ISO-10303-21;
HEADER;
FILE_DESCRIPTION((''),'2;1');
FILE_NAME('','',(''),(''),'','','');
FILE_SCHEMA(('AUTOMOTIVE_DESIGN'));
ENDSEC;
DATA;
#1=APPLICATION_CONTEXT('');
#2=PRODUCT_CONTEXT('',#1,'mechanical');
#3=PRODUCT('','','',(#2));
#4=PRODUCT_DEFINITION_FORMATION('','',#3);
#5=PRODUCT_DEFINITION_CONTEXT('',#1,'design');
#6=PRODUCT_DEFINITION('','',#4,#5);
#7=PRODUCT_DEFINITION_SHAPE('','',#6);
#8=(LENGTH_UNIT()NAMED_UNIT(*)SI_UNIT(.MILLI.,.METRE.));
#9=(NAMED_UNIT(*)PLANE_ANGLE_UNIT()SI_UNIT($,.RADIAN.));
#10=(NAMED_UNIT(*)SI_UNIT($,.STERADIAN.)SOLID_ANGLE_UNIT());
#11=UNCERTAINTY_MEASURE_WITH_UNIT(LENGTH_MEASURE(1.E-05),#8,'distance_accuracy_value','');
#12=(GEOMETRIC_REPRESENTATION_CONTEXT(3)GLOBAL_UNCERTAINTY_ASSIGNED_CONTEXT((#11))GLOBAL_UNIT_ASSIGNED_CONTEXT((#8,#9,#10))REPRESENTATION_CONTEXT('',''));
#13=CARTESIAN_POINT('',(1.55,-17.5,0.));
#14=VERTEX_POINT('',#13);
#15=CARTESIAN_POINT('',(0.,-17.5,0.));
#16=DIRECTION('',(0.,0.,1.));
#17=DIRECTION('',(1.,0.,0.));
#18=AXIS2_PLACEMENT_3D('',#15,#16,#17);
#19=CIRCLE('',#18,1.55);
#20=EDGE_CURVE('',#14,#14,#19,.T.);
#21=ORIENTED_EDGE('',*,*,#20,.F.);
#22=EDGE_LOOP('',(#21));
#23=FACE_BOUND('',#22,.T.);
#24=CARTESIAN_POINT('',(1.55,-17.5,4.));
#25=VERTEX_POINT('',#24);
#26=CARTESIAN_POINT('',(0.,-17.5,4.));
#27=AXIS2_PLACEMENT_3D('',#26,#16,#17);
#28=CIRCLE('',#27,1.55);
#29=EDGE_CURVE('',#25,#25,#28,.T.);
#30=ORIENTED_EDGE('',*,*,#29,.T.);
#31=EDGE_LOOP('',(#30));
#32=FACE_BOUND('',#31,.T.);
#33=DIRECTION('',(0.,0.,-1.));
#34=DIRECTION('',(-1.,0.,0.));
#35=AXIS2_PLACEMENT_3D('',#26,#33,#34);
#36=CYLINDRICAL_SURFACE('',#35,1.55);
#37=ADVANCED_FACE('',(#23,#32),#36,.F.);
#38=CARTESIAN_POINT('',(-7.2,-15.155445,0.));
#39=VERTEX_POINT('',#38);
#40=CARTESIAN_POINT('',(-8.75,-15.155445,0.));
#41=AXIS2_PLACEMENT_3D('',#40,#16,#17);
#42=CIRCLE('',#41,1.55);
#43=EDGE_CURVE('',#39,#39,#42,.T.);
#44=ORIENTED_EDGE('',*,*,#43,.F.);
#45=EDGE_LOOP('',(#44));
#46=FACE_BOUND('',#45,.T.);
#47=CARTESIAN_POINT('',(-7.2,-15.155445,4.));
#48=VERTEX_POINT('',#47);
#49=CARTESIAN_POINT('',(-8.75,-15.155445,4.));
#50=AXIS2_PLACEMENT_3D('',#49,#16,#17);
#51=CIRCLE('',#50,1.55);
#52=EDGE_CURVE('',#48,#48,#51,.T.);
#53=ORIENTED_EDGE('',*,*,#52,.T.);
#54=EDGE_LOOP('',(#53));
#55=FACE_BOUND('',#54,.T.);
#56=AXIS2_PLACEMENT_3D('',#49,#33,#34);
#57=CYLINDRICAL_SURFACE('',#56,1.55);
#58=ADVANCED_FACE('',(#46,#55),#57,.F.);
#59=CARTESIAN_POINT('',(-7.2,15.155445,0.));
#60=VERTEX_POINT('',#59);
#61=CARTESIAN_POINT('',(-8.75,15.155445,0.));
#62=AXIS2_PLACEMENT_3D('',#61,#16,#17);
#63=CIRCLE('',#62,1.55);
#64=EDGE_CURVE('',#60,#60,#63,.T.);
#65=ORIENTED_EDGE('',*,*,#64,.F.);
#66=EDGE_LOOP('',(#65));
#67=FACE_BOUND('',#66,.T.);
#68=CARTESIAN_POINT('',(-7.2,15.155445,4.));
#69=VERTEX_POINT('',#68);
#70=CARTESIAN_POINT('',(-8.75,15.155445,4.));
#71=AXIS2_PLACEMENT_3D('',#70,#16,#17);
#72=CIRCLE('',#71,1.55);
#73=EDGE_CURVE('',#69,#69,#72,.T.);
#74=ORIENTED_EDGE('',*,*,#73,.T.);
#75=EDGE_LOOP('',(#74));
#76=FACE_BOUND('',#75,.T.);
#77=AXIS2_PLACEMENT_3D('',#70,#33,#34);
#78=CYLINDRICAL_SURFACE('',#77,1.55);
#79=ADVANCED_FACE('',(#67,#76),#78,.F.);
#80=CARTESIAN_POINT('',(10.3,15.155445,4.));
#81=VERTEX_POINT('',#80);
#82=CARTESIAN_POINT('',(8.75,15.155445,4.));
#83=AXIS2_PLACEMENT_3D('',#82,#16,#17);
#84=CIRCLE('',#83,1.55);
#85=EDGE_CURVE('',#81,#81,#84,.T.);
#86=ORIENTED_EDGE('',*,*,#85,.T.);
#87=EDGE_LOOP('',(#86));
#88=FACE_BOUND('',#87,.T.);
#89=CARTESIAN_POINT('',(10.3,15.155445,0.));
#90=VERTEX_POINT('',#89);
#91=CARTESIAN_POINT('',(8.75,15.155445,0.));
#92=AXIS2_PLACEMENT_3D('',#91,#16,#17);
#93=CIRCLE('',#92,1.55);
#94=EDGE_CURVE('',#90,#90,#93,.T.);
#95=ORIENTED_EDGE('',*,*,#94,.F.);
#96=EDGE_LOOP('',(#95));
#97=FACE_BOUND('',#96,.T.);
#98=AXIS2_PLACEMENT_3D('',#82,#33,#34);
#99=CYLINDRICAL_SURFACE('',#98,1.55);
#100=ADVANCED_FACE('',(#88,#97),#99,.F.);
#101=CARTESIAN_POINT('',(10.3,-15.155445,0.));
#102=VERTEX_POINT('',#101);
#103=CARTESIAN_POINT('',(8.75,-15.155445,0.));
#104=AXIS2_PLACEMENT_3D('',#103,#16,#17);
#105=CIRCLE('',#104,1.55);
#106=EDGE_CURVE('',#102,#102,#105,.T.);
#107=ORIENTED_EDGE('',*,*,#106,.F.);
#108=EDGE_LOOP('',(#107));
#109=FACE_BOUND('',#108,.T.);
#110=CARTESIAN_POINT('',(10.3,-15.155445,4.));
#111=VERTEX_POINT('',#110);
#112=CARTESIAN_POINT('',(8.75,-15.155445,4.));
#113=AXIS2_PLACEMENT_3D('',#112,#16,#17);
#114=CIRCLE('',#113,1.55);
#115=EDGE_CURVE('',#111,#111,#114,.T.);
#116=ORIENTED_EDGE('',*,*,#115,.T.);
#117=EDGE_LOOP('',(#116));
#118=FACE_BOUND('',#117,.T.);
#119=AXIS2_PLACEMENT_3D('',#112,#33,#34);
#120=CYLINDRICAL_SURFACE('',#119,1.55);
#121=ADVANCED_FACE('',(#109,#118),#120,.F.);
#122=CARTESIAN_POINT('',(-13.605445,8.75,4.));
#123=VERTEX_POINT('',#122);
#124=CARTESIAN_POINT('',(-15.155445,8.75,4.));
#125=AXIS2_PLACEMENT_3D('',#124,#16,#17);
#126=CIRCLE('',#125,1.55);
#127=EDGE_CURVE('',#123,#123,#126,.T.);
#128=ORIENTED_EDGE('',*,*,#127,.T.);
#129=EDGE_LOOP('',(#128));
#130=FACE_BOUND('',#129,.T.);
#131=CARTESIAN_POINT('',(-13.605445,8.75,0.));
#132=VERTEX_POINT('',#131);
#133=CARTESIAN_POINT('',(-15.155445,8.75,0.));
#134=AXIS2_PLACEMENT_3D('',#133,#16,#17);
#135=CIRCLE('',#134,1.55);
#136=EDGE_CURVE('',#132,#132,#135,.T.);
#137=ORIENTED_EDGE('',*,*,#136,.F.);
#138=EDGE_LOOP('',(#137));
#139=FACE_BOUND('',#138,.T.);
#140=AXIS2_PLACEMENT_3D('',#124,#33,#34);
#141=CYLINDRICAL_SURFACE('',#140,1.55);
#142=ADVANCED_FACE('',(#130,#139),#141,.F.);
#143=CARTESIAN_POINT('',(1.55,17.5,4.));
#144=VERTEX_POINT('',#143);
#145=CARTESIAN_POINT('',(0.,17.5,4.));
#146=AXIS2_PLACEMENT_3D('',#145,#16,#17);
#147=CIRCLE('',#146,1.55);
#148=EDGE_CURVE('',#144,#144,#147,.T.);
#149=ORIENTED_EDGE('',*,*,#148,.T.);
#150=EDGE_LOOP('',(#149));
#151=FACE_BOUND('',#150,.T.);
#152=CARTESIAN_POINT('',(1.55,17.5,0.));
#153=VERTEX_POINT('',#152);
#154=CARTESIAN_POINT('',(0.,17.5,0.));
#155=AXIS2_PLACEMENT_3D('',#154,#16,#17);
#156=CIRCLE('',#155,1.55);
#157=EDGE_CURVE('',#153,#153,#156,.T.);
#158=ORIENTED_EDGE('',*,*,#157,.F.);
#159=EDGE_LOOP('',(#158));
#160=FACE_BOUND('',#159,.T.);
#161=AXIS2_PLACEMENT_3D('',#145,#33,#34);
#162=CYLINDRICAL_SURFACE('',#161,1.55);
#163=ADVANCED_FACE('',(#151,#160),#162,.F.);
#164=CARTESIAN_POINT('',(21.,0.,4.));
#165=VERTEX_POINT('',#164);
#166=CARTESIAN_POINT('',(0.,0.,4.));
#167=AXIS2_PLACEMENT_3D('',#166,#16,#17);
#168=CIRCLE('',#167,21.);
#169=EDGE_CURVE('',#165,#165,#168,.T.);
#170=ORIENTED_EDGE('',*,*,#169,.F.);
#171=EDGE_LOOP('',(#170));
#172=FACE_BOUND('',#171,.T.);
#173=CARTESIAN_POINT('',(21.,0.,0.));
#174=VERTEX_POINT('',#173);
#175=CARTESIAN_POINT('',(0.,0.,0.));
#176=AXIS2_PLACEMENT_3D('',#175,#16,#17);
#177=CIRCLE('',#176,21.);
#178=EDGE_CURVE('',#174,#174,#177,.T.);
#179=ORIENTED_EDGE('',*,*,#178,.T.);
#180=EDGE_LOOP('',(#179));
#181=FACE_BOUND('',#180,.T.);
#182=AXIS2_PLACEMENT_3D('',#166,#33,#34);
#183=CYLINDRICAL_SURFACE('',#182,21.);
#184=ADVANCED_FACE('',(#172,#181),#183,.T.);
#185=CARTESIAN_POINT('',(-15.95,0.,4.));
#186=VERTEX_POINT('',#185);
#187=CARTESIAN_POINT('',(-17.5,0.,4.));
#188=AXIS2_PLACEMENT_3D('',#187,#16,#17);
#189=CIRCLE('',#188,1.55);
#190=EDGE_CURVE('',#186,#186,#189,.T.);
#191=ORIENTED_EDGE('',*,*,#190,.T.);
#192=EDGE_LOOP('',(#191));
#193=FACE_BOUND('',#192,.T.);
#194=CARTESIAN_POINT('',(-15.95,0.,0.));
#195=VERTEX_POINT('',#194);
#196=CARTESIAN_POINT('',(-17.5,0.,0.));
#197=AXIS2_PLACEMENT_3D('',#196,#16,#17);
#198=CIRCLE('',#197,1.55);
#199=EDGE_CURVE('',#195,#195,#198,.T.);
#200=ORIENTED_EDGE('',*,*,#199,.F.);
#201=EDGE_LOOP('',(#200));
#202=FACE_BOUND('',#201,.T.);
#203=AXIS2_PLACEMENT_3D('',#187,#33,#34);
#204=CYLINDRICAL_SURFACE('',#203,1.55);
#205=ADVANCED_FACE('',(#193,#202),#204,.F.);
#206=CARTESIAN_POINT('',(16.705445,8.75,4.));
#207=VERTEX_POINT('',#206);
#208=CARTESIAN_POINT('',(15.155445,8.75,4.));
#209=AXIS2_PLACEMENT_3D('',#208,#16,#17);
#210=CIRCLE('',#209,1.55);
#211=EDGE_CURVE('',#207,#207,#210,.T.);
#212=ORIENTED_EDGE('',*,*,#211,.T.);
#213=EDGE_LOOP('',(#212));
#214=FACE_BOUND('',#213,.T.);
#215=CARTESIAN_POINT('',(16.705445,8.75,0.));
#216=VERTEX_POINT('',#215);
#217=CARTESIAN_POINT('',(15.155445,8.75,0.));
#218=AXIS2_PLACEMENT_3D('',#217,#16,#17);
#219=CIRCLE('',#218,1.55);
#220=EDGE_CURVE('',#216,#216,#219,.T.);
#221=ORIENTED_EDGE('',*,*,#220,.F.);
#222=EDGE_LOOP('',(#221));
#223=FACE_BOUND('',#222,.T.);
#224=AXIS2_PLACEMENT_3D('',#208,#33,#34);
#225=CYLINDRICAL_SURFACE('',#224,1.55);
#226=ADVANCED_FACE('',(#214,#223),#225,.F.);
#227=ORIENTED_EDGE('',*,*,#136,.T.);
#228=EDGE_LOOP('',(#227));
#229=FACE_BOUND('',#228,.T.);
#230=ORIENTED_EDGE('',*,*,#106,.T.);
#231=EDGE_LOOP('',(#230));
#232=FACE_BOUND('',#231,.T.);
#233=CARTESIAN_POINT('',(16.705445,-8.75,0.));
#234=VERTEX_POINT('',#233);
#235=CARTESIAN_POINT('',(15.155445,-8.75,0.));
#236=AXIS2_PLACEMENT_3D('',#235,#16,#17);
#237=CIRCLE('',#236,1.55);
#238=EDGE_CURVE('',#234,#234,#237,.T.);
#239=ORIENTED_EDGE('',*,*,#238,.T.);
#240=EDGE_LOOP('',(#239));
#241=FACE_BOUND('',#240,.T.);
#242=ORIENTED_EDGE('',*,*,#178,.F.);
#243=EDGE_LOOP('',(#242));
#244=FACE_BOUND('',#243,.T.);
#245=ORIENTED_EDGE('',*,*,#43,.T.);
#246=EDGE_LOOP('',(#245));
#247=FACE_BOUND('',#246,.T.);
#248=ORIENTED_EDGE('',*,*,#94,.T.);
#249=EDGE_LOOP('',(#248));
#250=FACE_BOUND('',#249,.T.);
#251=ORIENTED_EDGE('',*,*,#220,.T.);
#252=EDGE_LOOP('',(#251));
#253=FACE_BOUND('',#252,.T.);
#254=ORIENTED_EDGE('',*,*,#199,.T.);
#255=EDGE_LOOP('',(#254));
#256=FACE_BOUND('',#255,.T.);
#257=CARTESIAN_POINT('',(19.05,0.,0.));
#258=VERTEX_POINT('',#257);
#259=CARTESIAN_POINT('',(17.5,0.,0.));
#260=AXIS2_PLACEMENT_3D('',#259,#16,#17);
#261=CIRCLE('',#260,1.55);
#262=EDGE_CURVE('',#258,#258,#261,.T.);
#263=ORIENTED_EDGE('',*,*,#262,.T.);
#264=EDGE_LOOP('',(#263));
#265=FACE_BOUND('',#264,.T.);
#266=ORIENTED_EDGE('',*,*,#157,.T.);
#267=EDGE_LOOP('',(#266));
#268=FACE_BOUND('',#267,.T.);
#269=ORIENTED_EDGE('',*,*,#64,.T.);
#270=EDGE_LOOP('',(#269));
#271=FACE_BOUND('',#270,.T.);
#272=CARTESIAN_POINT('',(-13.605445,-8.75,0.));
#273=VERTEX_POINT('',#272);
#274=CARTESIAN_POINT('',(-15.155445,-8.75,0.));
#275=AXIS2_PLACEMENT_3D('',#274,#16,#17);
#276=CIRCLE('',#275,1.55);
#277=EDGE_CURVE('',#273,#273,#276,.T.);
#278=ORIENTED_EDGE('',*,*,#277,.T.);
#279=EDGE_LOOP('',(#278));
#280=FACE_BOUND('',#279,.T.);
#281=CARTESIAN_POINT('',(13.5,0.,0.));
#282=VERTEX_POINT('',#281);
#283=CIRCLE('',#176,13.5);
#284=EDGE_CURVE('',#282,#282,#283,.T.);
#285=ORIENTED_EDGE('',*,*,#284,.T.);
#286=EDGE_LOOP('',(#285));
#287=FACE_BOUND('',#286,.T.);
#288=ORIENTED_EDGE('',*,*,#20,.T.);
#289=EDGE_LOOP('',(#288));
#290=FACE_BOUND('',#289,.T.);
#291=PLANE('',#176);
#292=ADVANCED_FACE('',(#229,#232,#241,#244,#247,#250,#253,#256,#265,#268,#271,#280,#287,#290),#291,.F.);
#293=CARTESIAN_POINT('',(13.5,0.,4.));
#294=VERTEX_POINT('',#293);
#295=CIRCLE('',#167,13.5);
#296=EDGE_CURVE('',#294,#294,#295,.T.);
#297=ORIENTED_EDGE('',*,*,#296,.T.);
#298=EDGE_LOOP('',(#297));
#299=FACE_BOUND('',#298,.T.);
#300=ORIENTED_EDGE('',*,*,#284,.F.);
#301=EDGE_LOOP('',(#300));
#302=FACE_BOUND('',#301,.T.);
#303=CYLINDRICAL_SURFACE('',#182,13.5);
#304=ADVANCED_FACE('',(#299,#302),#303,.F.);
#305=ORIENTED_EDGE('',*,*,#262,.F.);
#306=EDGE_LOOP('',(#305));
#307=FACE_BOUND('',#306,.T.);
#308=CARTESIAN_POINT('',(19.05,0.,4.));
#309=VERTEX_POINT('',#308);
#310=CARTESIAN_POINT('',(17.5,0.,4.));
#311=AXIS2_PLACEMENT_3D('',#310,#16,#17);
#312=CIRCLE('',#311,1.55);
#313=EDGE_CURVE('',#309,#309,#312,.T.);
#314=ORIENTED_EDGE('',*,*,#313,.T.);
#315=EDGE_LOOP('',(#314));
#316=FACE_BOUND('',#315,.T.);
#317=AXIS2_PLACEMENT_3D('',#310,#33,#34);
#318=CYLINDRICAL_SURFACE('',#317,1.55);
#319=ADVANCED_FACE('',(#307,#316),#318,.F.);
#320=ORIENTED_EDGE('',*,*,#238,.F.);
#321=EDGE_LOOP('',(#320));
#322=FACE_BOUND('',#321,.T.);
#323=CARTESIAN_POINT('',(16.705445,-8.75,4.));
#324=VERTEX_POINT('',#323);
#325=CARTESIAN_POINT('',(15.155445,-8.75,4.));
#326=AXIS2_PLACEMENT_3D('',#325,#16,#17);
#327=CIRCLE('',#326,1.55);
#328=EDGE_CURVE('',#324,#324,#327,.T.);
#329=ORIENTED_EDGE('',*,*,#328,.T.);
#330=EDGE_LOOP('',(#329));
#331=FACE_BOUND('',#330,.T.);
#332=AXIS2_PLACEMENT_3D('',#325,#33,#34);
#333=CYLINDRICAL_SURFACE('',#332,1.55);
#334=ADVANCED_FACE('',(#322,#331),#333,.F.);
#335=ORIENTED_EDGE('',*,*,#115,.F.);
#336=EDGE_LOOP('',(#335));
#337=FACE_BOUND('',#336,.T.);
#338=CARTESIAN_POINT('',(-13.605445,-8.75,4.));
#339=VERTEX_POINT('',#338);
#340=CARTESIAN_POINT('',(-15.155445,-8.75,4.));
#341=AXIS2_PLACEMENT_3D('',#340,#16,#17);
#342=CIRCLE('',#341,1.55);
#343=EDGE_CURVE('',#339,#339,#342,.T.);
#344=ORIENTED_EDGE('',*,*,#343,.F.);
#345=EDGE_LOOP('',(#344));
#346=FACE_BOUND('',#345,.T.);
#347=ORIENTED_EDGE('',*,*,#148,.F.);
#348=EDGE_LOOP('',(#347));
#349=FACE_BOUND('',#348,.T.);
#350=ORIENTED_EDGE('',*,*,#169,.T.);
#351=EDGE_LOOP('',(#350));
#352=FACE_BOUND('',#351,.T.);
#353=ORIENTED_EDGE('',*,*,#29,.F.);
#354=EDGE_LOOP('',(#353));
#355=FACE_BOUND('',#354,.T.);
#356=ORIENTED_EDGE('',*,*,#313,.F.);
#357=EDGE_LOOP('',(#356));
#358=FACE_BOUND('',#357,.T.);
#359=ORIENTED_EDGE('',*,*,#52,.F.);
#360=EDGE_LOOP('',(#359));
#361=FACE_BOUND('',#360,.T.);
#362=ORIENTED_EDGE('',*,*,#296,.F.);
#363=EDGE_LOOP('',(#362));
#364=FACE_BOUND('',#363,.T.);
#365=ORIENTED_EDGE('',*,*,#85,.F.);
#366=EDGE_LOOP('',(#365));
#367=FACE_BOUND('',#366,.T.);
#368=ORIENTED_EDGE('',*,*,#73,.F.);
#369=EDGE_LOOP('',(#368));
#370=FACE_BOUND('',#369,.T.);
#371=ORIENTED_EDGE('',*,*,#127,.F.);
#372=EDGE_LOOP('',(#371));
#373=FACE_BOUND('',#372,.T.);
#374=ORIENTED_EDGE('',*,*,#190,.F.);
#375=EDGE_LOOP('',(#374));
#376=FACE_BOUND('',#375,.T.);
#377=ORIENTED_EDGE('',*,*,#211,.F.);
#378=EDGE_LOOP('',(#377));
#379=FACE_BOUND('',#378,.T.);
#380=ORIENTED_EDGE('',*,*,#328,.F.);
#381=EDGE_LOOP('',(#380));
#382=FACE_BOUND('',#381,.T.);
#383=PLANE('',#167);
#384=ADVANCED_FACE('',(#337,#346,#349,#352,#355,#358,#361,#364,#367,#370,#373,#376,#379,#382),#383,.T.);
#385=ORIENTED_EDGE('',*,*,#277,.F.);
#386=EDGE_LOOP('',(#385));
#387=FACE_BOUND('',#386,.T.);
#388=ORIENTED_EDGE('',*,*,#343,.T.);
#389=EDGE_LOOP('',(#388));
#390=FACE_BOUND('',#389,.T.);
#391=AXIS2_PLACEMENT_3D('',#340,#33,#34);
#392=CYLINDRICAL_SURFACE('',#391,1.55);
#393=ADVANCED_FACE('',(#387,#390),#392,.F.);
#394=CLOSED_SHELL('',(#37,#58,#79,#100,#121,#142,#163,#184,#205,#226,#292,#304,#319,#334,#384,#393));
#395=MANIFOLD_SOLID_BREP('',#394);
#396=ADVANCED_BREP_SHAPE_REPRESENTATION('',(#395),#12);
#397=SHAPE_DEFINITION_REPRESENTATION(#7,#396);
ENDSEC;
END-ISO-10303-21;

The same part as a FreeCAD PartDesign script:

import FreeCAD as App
import Part
import Sketcher
from FreeCAD import Vector
Q = App.Units.Quantity

doc = App.newDocument("Part")
body = doc.addObject("PartDesign::Body", "Body")

sketch1 = doc.addObject("Sketcher::SketchObject", "Sketch")
body.addObject(sketch1)
sketch1.AttachmentSupport = (doc.XY_Plane, [""])
sketch1.MapMode = "FlatFace"
sketch1.addGeometry([
    Part.Circle(Vector(0, 0, 0), Vector(0, 0, 1), 21),
    Part.Circle(Vector(-8.8, -15.2, 0), Vector(0, 0, 1), 1.6),
    Part.Circle(Vector(-15.2, -8.8, 0), Vector(0, 0, 1), 1.6),
    Part.Circle(Vector(0, -17.5, 0), Vector(0, 0, 1), 1.6),
    Part.Circle(Vector(8.8, -15.2, 0), Vector(0, 0, 1), 1.6),
    Part.Circle(Vector(15.2, -8.8, 0), Vector(0, 0, 1), 1.6),
    Part.Circle(Vector(-17.5, 0, 0), Vector(0, 0, 1), 1.6),
    Part.Circle(Vector(-15.2, 8.8, 0), Vector(0, 0, 1), 1.6),
    Part.Circle(Vector(-8.8, 15.2, 0), Vector(0, 0, 1), 1.6),
    Part.Circle(Vector(0, 0, 0), Vector(0, 0, 1), 13.5),
    Part.Circle(Vector(17.5, 0, 0), Vector(0, 0, 1), 1.6),
    Part.Circle(Vector(15.2, 8.8, 0), Vector(0, 0, 1), 1.6),
    Part.Circle(Vector(0, 17.5, 0), Vector(0, 0, 1), 1.6),
    Part.Circle(Vector(8.8, 15.2, 0), Vector(0, 0, 1), 1.6),
], False)
sketch1.addConstraint([
    Sketcher.Constraint("Coincident", 0, 3, -1, 1),
    Sketcher.Constraint("Coincident", 9, 3, -1, 1),
    Sketcher.Constraint("Equal", 1, 2),
    Sketcher.Constraint("Equal", 2, 3),
    Sketcher.Constraint("Equal", 3, 4),
    Sketcher.Constraint("Equal", 4, 5),
    Sketcher.Constraint("Equal", 5, 6),
    Sketcher.Constraint("Equal", 6, 7),
    Sketcher.Constraint("Equal", 7, 8),
    Sketcher.Constraint("Equal", 8, 10),
    Sketcher.Constraint("Equal", 10, 11),
    Sketcher.Constraint("Equal", 11, 12),
    Sketcher.Constraint("Equal", 12, 13),
    Sketcher.Constraint("Symmetric", 5, 3, 7, 3, -1, 1),
    Sketcher.Constraint("Symmetric", 4, 3, 8, 3, -1, 1),
    Sketcher.Constraint("Symmetric", 6, 3, 10, 3, -1, 1),
    Sketcher.Constraint("Symmetric", 2, 3, 11, 3, -1, 1),
    Sketcher.Constraint("Symmetric", 3, 3, 12, 3, -1, 1),
    Sketcher.Constraint("Symmetric", 1, 3, 13, 3, -1, 1),
    Sketcher.Constraint("Symmetric", 1, 3, 4, 3, -2),
    Sketcher.Constraint("Symmetric", 2, 3, 5, 3, -2),
    Sketcher.Constraint("PointOnObject", 3, 3, -2),
    Sketcher.Constraint("PointOnObject", 6, 3, -1),
    Sketcher.Constraint("Diameter", 0, Q("42 mm")),
    Sketcher.Constraint("Diameter", 9, Q("27 mm")),
    Sketcher.Constraint("Diameter", 1, Q("3.1 mm")),
    Sketcher.Constraint("DistanceY", 3, 3, -1, 1, Q("17.5 mm")),
    Sketcher.Constraint("DistanceX", 6, 3, -1, 1, Q("17.5 mm")),
    Sketcher.Constraint("DistanceX", 1, 3, 4, 3, Q("17.5 mm")),
    Sketcher.Constraint("DistanceY", 2, 3, 7, 3, Q("17.5 mm")),
    Sketcher.Constraint("DistanceX", 2, 3, 5, 3, Q("30.310889 mm")),
    Sketcher.Constraint("DistanceY", 1, 3, 8, 3, Q("30.310889 mm")),
])
pad1 = doc.addObject("PartDesign::Pad", "Pad")
body.addObject(pad1)
pad1.Profile = sketch1
pad1.Length = 4

doc.recompute()
